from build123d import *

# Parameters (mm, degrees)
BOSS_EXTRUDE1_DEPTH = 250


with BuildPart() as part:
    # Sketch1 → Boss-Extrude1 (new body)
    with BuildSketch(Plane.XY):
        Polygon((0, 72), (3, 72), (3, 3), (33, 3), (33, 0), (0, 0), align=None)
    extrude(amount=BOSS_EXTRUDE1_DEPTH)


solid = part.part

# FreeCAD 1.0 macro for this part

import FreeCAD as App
import Part
import Sketcher

V = App.Vector
Q = App.Units.Quantity


def add_polygon(sketch, points):
    """Adds a closed chain of lines whose ends are joined by coincident constraints."""
    first, n = sketch.GeometryCount, len(points)
    for a, b in zip(points, points[1:] + points[:1]):
        sketch.addGeometry(Part.LineSegment(App.Vector(*a, 0), App.Vector(*b, 0)), False)
    for i in range(n):
        sketch.addConstraint(Sketcher.Constraint("Coincident", first + i, 2, first + (i + 1) % n, 1))

doc = App.newDocument("Part")
body = doc.addObject("PartDesign::Body", "Body")

sketch1 = body.newObject("Sketcher::SketchObject", "Sketch")
sketch1.AttachmentSupport = (doc.getObject("XY_Plane"), [""])
sketch1.MapMode = "FlatFace"
add_polygon(sketch1, [(3, 72), (0, 72), (0, 0), (33, 0), (33, 3), (3, 3)])
sketch1.addConstraint(Sketcher.Constraint("Horizontal", 0))
sketch1.addConstraint(Sketcher.Constraint("Vertical", 1))
sketch1.addConstraint(Sketcher.Constraint("Horizontal", 2))
sketch1.addConstraint(Sketcher.Constraint("Vertical", 3))
sketch1.addConstraint(Sketcher.Constraint("Horizontal", 4))
sketch1.addConstraint(Sketcher.Constraint("Vertical", 5))
sketch1.addConstraint(Sketcher.Constraint("Coincident", 1, 2, -1, 1))
sketch1.addConstraint(Sketcher.Constraint("Equal", 0, 3))
sketch1.addConstraint(Sketcher.Constraint("DistanceX", 0, 2, 0, 1, Q("3 mm")))
sketch1.addConstraint(Sketcher.Constraint("DistanceX", 2, 1, 2, 2, Q("33 mm")))
sketch1.addConstraint(Sketcher.Constraint("DistanceY", 1, 2, 1, 1, Q("72 mm")))
pad1 = body.newObject("PartDesign::Pad", "Pad")
pad1.Profile = sketch1
pad1.Length = 250

doc.recompute()
